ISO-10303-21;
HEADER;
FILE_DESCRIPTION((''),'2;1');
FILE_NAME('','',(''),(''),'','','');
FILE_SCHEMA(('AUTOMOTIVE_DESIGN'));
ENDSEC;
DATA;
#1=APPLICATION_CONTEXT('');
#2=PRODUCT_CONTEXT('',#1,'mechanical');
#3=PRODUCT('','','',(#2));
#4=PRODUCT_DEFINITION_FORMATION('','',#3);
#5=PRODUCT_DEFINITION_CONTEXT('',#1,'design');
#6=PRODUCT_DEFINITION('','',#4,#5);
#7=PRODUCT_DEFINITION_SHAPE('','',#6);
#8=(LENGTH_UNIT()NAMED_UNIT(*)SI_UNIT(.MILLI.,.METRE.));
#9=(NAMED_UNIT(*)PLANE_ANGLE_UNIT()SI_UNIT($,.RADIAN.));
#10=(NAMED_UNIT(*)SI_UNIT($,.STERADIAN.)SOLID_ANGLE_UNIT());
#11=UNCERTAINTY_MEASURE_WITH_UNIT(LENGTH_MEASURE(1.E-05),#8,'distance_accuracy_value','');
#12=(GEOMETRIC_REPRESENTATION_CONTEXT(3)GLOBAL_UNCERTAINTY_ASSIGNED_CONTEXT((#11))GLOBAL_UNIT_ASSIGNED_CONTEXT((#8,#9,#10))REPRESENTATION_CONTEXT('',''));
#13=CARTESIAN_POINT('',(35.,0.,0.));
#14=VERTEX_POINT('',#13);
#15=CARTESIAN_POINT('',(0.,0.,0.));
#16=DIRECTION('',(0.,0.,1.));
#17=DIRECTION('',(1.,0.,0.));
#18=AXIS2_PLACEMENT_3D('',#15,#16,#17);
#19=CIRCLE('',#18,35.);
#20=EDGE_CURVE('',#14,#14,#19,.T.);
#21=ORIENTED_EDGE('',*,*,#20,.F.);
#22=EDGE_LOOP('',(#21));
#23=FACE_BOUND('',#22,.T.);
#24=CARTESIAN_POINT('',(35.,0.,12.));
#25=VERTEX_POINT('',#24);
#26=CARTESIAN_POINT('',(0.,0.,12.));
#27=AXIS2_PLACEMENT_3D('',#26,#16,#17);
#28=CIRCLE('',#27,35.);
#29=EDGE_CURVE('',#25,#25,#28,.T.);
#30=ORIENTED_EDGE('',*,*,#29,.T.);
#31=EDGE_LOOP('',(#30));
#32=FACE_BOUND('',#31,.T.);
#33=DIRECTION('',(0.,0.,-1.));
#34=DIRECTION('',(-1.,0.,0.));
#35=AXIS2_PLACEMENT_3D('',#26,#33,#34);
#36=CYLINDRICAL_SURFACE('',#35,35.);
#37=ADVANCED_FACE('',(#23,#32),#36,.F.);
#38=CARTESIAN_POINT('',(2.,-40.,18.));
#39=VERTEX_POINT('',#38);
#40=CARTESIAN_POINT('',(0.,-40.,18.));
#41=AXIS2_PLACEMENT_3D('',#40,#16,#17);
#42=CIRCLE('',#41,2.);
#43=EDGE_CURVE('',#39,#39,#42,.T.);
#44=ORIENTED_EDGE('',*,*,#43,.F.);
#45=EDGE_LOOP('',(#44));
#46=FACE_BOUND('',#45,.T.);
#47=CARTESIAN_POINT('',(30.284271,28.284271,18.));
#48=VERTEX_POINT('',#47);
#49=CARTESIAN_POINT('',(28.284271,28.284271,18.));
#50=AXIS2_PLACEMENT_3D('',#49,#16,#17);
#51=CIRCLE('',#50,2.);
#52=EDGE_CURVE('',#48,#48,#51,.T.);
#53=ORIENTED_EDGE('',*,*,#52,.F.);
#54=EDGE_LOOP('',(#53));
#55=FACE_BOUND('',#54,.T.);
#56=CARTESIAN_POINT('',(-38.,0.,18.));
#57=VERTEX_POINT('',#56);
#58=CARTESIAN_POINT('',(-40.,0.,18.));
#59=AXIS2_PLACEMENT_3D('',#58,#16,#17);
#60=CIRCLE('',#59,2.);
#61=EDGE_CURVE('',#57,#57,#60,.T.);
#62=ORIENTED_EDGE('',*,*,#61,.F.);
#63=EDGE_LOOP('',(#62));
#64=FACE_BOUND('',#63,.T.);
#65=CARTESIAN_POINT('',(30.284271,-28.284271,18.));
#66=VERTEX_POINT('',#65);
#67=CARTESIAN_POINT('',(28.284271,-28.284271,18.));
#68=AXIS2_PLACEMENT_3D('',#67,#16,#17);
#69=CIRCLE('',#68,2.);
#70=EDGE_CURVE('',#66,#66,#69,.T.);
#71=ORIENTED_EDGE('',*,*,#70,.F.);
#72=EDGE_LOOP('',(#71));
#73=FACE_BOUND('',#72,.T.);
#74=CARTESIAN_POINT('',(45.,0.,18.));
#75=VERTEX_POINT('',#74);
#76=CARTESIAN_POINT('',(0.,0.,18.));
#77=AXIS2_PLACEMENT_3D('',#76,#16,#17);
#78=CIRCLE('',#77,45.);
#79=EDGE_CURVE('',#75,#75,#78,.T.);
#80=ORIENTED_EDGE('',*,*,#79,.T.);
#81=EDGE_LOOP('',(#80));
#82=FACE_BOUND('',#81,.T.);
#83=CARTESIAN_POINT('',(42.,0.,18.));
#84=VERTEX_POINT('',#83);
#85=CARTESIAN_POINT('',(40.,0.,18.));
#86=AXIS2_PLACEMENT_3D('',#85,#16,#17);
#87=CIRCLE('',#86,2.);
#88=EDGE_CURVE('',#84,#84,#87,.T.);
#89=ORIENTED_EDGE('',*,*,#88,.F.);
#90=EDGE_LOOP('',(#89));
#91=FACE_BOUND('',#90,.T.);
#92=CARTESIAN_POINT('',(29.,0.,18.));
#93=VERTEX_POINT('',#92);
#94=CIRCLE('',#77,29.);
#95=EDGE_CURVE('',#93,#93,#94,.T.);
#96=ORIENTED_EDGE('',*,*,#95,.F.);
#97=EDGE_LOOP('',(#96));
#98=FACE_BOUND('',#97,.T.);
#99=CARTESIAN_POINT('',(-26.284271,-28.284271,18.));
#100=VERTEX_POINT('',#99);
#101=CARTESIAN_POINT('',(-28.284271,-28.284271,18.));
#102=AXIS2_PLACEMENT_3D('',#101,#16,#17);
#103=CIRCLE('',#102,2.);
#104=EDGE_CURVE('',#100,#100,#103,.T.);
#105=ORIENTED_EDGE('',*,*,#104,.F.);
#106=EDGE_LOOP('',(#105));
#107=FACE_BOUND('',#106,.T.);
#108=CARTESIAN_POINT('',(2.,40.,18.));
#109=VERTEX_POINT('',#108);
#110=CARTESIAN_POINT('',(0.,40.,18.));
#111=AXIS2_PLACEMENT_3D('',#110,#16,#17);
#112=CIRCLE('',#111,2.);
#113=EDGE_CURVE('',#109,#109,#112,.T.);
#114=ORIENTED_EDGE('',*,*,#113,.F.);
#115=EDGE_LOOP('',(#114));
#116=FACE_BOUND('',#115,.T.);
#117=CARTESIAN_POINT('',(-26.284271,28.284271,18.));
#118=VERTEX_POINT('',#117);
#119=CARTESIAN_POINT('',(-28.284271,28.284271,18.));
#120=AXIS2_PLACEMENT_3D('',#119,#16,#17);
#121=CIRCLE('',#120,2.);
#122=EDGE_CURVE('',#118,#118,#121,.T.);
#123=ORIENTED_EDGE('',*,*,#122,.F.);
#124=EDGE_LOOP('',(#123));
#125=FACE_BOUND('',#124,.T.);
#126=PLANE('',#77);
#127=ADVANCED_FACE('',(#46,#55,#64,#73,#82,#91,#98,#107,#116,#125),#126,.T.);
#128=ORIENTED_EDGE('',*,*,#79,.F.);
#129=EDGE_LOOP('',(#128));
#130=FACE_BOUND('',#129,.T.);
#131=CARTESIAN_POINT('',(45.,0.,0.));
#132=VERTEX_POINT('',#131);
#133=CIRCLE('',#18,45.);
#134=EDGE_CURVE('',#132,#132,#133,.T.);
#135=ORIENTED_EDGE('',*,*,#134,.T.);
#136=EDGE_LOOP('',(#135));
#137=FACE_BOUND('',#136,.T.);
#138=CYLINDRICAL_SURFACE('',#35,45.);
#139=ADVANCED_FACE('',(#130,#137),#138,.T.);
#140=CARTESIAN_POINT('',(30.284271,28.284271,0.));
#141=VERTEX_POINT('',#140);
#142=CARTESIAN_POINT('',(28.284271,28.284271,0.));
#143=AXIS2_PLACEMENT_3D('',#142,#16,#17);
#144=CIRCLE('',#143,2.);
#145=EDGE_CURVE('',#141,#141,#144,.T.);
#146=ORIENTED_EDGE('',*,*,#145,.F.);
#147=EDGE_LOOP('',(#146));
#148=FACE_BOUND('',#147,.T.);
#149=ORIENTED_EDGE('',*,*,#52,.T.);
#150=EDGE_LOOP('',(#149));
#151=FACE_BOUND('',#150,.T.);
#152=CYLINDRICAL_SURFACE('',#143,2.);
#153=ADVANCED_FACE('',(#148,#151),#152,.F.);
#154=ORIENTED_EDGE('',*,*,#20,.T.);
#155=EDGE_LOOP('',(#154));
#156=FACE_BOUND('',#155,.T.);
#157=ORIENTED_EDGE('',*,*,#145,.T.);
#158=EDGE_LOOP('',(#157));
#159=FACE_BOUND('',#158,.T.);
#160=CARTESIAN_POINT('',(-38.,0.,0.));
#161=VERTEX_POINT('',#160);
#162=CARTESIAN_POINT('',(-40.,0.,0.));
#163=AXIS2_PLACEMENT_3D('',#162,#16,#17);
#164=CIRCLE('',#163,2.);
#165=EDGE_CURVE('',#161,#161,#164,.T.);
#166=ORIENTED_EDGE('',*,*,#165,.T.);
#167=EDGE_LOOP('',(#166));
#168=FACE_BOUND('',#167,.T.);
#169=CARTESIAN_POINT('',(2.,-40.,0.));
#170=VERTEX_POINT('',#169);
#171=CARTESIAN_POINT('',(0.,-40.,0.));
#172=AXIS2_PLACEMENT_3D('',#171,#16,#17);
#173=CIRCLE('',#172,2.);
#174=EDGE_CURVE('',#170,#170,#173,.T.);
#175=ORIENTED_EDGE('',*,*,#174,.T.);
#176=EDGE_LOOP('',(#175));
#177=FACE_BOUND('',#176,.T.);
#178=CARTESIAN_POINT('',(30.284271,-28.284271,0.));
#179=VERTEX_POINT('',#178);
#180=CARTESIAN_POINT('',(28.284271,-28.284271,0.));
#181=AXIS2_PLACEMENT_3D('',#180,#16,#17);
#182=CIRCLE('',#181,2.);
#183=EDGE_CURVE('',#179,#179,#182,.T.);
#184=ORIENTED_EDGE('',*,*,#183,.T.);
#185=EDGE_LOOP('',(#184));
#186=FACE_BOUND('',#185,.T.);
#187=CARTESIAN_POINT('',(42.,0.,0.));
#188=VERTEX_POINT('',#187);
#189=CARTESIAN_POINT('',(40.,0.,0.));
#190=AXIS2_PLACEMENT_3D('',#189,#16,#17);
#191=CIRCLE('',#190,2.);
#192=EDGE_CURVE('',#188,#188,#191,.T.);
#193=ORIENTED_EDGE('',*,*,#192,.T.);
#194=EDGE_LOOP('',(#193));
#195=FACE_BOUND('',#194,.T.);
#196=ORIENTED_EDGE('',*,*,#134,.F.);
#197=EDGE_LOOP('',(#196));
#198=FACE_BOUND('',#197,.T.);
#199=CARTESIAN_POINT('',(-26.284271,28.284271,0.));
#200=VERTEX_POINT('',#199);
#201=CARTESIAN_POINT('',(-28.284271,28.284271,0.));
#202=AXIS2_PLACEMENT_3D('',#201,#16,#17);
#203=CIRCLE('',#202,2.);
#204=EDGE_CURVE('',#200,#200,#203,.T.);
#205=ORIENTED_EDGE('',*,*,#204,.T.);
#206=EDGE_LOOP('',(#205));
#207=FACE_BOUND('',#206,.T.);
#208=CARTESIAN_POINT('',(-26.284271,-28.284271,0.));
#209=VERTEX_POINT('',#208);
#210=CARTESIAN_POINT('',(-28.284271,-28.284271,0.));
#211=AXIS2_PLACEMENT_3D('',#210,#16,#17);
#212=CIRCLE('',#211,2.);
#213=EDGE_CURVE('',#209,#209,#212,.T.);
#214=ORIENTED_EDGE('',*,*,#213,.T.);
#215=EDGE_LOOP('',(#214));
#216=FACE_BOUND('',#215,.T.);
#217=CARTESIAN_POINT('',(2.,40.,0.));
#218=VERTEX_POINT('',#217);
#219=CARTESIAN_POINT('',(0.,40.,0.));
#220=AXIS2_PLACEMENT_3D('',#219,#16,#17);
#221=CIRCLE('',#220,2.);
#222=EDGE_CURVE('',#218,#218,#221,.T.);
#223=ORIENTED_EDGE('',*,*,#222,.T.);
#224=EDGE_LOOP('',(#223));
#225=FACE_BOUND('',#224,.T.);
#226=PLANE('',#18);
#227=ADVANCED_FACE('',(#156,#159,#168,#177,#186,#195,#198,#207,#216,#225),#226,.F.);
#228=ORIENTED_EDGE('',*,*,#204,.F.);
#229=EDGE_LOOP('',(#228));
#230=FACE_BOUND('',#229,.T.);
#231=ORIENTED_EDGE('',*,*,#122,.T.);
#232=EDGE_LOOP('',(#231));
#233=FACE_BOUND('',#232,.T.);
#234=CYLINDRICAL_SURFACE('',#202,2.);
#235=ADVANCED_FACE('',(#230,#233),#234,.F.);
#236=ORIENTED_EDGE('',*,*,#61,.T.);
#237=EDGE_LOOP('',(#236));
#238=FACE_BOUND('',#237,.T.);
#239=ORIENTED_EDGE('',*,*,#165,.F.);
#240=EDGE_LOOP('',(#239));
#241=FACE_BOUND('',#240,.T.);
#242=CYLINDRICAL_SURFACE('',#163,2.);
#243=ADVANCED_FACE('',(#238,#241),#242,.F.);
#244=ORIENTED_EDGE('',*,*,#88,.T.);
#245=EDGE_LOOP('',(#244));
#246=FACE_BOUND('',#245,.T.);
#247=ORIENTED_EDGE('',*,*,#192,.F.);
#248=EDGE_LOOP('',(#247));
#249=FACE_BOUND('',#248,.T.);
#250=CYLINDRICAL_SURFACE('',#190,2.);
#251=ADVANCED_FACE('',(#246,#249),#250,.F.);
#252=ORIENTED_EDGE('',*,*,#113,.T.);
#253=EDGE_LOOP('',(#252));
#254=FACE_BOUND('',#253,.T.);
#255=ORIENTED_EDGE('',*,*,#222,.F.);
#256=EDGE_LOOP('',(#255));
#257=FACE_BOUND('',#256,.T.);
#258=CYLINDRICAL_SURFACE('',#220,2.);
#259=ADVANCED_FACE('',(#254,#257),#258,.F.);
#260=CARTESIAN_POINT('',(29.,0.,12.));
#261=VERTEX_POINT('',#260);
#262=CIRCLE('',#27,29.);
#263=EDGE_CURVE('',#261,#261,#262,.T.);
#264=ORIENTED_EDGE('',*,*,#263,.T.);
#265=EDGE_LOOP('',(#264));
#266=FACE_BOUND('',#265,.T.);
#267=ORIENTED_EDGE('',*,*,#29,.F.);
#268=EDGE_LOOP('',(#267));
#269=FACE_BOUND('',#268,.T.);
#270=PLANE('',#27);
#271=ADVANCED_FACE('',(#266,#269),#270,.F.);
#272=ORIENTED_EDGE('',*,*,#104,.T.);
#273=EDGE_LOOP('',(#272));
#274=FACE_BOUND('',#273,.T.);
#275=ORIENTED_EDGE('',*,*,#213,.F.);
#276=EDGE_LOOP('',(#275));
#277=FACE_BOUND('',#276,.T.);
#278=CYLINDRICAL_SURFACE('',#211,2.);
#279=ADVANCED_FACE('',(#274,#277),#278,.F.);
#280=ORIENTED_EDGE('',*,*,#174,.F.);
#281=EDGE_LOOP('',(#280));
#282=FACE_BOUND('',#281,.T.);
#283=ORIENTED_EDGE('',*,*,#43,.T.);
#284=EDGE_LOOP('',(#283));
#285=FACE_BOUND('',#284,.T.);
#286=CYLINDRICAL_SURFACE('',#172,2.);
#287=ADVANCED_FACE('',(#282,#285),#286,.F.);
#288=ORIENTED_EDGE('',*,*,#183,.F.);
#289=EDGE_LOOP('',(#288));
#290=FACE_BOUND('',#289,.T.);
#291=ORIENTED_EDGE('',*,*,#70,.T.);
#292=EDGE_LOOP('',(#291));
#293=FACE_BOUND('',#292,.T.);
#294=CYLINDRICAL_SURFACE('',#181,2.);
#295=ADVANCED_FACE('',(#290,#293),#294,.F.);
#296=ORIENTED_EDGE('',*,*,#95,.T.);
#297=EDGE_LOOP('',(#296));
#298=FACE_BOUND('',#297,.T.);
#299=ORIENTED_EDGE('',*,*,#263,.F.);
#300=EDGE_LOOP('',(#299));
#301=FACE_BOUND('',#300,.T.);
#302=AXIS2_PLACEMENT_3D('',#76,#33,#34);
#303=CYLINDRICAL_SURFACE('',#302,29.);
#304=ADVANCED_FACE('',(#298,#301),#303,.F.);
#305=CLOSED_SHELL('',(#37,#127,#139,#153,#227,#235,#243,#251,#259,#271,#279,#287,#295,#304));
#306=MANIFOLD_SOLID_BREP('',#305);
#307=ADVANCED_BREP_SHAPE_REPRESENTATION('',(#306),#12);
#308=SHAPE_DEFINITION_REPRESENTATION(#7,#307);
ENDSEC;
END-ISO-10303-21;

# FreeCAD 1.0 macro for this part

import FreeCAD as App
import Part
import Sketcher
Q = App.Units.Quantity

doc = App.newDocument("Part")
body = doc.addObject("PartDesign::Body", "Body")

sketch1 = body.newObject("Sketcher::SketchObject", "Sketch")
sketch1.AttachmentSupport = (doc.getObject("XY_Plane"), [""])
sketch1.MapMode = "FlatFace"
sketch1.addGeometry(Part.Circle(App.Vector(0, 0, 0), App.Vector(0, 0, 1), 45), False)
sketch1.addGeometry(Part.Circle(App.Vector(0, 0, 0), App.Vector(0, 0, 1), 35), False)
sketch1.addConstraint(Sketcher.Constraint("Coincident", 0, 3, -1, 1))
sketch1.addConstraint(Sketcher.Constraint("Coincident", 1, 3, -1, 1))
sketch1.addConstraint(Sketcher.Constraint("Diameter", 0, Q("90 mm")))
sketch1.addConstraint(Sketcher.Constraint("Diameter", 1, Q("70 mm")))
pad1 = body.newObject("PartDesign::Pad", "Pad")
pad1.Profile = sketch1
pad1.Length = 12

sketch2 = body.newObject("Sketcher::SketchObject", "Sketch001")
sketch2.AttachmentSupport = (doc.getObject("XY_Plane"), [""])
sketch2.MapMode = "FlatFace"
sketch2.AttachmentOffset = App.Placement(App.Vector(0, 0, 12), App.Rotation())
sketch2.addGeometry(Part.Circle(App.Vector(0, 0, 0), App.Vector(0, 0, 1), 45), False)
sketch2.addGeometry(Part.Circle(App.Vector(0, 0, 0), App.Vector(0, 0, 1), 29), False)
sketch2.addConstraint(Sketcher.Constraint("Coincident", 0, 3, -1, 1))
sketch2.addConstraint(Sketcher.Constraint("Coincident", 1, 3, -1, 1))
sketch2.addConstraint(Sketcher.Constraint("Diameter", 0, Q("90 mm")))
sketch2.addConstraint(Sketcher.Constraint("Diameter", 1, Q("58 mm")))
pad2 = body.newObject("PartDesign::Pad", "Pad001")
pad2.Profile = sketch2
pad2.Length = 6

sketch3 = body.newObject("Sketcher::SketchObject", "Sketch002")
sketch3.AttachmentSupport = (doc.getObject("XY_Plane"), [""])
sketch3.MapMode = "FlatFace"
sketch3.AttachmentOffset = App.Placement(App.Vector(0, 0, 18), App.Rotation())
sketch3.addGeometry(Part.Circle(App.Vector(0, 40, 0), App.Vector(0, 0, 1), 2), False)
sketch3.addGeometry(Part.Circle(App.Vector(28.3, 28.3, 0), App.Vector(0, 0, 1), 2), False)
sketch3.addGeometry(Part.Circle(App.Vector(40, 0, 0), App.Vector(0, 0, 1), 2), False)
sketch3.addGeometry(Part.Circle(App.Vector(28.3, -28.3, 0), App.Vector(0, 0, 1), 2), False)
sketch3.addGeometry(Part.Circle(App.Vector(0, -40, 0), App.Vector(0, 0, 1), 2), False)
sketch3.addGeometry(Part.Circle(App.Vector(-28.3, -28.3, 0), App.Vector(0, 0, 1), 2), False)
sketch3.addGeometry(Part.Circle(App.Vector(-40, 0, 0), App.Vector(0, 0, 1), 2), False)
sketch3.addGeometry(Part.Circle(App.Vector(-28.3, 28.3, 0), App.Vector(0, 0, 1), 2), False)
sketch3.addConstraint(Sketcher.Constraint("Equal", 0, 1))
sketch3.addConstraint(Sketcher.Constraint("Equal", 1, 2))
sketch3.addConstraint(Sketcher.Constraint("Equal", 2, 3))
sketch3.addConstraint(Sketcher.Constraint("Equal", 3, 4))
sketch3.addConstraint(Sketcher.Constraint("Equal", 4, 5))
sketch3.addConstraint(Sketcher.Constraint("Equal", 5, 6))
sketch3.addConstraint(Sketcher.Constraint("Equal", 6, 7))
sketch3.addConstraint(Sketcher.Constraint("Symmetric", 0, 3, 4, 3, -1, 1))
sketch3.addConstraint(Sketcher.Constraint("Symmetric", 1, 3, 5, 3, -1, 1))
sketch3.addConstraint(Sketcher.Constraint("Symmetric", 2, 3, 6, 3, -1, 1))
sketch3.addConstraint(Sketcher.Constraint("Symmetric", 3, 3, 7, 3, -1, 1))
sketch3.addConstraint(Sketcher.Constraint("Symmetric", 3, 3, 5, 3, -2))
sketch3.addConstraint(Sketcher.Constraint("PointOnObject", 0, 3, -2))
sketch3.addConstraint(Sketcher.Constraint("PointOnObject", 2, 3, -1))
sketch3.addConstraint(Sketcher.Constraint("Diameter", 0, Q("4 mm")))
sketch3.addConstraint(Sketcher.Constraint("DistanceY", -1, 1, 0, 3, Q("40 mm")))
sketch3.addConstraint(Sketcher.Constraint("DistanceX", -1, 1, 2, 3, Q("40 mm")))
sketch3.addConstraint(Sketcher.Constraint("DistanceX", -1, 1, 1, 3, Q("28.284271 mm")))
sketch3.addConstraint(Sketcher.Constraint("DistanceY", -1, 1, 1, 3, Q("28.284271 mm")))
pocket1 = body.newObject("PartDesign::Pocket", "Pocket")
pocket1.Profile = sketch3
pocket1.Length = 18

doc.recompute()
